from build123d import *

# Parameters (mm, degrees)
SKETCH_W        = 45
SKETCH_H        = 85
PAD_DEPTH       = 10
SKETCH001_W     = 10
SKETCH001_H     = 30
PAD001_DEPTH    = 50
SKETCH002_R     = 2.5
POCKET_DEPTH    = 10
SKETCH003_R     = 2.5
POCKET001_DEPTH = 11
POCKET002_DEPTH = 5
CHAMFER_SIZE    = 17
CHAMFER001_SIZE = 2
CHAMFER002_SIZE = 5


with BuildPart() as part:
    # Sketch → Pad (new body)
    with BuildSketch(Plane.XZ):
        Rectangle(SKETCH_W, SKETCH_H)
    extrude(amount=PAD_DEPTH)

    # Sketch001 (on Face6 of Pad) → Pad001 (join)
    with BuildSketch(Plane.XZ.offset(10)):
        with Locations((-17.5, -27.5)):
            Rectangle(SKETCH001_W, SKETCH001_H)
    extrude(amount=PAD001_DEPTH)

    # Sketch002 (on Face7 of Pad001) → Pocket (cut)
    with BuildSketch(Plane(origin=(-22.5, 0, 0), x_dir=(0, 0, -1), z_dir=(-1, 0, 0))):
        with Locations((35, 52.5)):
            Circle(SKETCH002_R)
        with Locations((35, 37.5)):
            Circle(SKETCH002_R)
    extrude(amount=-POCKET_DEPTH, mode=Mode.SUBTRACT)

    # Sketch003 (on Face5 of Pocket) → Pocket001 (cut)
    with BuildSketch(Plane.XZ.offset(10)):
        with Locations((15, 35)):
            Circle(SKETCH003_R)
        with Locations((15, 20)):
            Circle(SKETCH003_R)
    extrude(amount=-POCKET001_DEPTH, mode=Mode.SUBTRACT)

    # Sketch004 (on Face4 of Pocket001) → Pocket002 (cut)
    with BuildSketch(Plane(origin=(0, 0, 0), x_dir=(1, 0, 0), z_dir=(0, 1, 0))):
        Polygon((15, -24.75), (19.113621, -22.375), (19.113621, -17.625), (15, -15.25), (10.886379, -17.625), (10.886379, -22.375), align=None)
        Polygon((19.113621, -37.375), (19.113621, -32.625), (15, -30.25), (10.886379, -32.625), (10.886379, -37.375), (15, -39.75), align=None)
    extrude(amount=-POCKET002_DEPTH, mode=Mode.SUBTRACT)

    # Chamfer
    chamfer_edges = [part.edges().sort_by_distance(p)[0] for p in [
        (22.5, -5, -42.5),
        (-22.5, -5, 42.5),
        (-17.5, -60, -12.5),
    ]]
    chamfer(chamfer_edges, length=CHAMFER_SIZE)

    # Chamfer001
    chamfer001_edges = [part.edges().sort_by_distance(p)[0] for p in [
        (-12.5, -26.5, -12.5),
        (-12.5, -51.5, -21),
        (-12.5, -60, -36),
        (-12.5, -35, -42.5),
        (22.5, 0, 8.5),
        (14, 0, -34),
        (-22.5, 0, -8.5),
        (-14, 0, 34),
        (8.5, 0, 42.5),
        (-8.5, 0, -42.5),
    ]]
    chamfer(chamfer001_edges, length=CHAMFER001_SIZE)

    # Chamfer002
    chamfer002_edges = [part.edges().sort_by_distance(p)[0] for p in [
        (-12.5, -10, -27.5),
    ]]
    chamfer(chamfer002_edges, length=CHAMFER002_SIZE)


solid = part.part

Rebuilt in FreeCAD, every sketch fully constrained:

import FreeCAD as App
import Part
import Sketcher
from FreeCAD import Vector
Q = App.Units.Quantity


def edges_at(feature, points):
    """Names of the edges that pass closest to the given points."""
    edges = feature.Shape.Edges
    near = lambda p: min(range(len(edges)), key=lambda i: edges[i].distToShape(Part.Vertex(*p))[0])
    return sorted({f"Edge{near(p) + 1}" for p in points})

doc = App.newDocument("Part")
body = doc.addObject("PartDesign::Body", "Body")

# Sketch on XZ plane
sketch1 = body.newObject("Sketcher::SketchObject", "Sketch")
sketch1.AttachmentSupport = (doc.getObject("XZ_Plane"), [""])
sketch1.MapMode = "FlatFace"
sketch1.addGeometry(Part.LineSegment(Vector(-22, 42, 0), Vector(-22, -42, 0)), False)
sketch1.addGeometry(Part.LineSegment(Vector(-22, -42, 0), Vector(22, -42, 0)), False)
sketch1.addGeometry(Part.LineSegment(Vector(22, -42, 0), Vector(22, 42, 0)), False)
sketch1.addGeometry(Part.LineSegment(Vector(22, 42, 0), Vector(-22, 42, 0)), False)
sketch1.addConstraint(Sketcher.Constraint("Coincident", 0, 2, 1, 1))
sketch1.addConstraint(Sketcher.Constraint("Coincident", 1, 2, 2, 1))
sketch1.addConstraint(Sketcher.Constraint("Coincident", 2, 2, 3, 1))
sketch1.addConstraint(Sketcher.Constraint("Coincident", 3, 2, 0, 1))
sketch1.addConstraint(Sketcher.Constraint("Vertical", 0))
sketch1.addConstraint(Sketcher.Constraint("Horizontal", 1))
sketch1.addConstraint(Sketcher.Constraint("Vertical", 2))
sketch1.addConstraint(Sketcher.Constraint("Horizontal", 3))
sketch1.addConstraint(Sketcher.Constraint("Symmetric", 0, 2, 2, 2, -1, 1))
sketch1.addConstraint(Sketcher.Constraint("DistanceX", 1, 1, 1, 2, 45.0))
sketch1.addConstraint(Sketcher.Constraint("DistanceY", 0, 2, 0, 1, 85.0))
pad1 = body.newObject("PartDesign::Pad", "Pad")
pad1.Profile = sketch1
pad1.Length = 10

# Sketch on XZ plane
sketch2 = body.newObject("Sketcher::SketchObject", "Sketch001")
sketch2.AttachmentSupport = (doc.getObject("XZ_Plane"), [""])
sketch2.MapMode = "FlatFace"
sketch2.AttachmentOffset = App.Placement(Vector(0, 0, 10), App.Rotation())
sketch2.addGeometry(Part.LineSegment(Vector(-22, -12, 0), Vector(-22, -42, 0)), False)
sketch2.addGeometry(Part.LineSegment(Vector(-22, -42, 0), Vector(-12, -42, 0)), False)
sketch2.addGeometry(Part.LineSegment(Vector(-12, -42, 0), Vector(-12, -12, 0)), False)
sketch2.addGeometry(Part.LineSegment(Vector(-12, -12, 0), Vector(-22, -12, 0)), False)
sketch2.addConstraint(Sketcher.Constraint("Coincident", 0, 2, 1, 1))
sketch2.addConstraint(Sketcher.Constraint("Coincident", 1, 2, 2, 1))
sketch2.addConstraint(Sketcher.Constraint("Coincident", 2, 2, 3, 1))
sketch2.addConstraint(Sketcher.Constraint("Coincident", 3, 2, 0, 1))
sketch2.addConstraint(Sketcher.Constraint("Vertical", 0))
sketch2.addConstraint(Sketcher.Constraint("Horizontal", 1))
sketch2.addConstraint(Sketcher.Constraint("Vertical", 2))
sketch2.addConstraint(Sketcher.Constraint("Horizontal", 3))
sketch2.addConstraint(Sketcher.Constraint("DistanceX", 1, 1, 1, 2, 10.0))
sketch2.addConstraint(Sketcher.Constraint("DistanceY", 0, 2, 0, 1, 30.0))
sketch2.addConstraint(Sketcher.Constraint("DistanceX", 0, 2, -1, 1, 22.5))
sketch2.addConstraint(Sketcher.Constraint("DistanceY", 0, 2, -1, 1, 42.5))
pad2 = body.newObject("PartDesign::Pad", "Pad001")
pad2.Profile = sketch2
pad2.Length = 50

# Sketch on YZ plane
sketch3 = body.newObject("Sketcher::SketchObject", "Sketch002")
sketch3.AttachmentSupport = (doc.getObject("YZ_Plane"), [""])
sketch3.MapMode = "FlatFace"
sketch3.AttachmentOffset = App.Placement(Vector(0, 0, -22.5), App.Rotation())
sketch3.addGeometry(Part.Circle(Vector(-52.5, -35, 0), Vector(0, 0, 1), 2.5), False)
sketch3.addGeometry(Part.Circle(Vector(-37.5, -35, 0), Vector(0, 0, 1), 2.5), False)
sketch3.addConstraint(Sketcher.Constraint("Equal", 0, 1))
sketch3.addConstraint(Sketcher.Constraint("Horizontal", 0, 3, 1, 3))
sketch3.addConstraint(Sketcher.Constraint("Diameter", 0, 5.0))
sketch3.addConstraint(Sketcher.Constraint("DistanceY", 0, 3, -1, 1, 35.0))
sketch3.addConstraint(Sketcher.Constraint("DistanceX", 0, 3, 1, 3, 15.0))
sketch3.addConstraint(Sketcher.Constraint("DistanceX", 0, 3, -1, 1, 52.5))
pocket1 = body.newObject("PartDesign::Pocket", "Pocket")
pocket1.Profile = sketch3
pocket1.Length = 10
pocket1.Reversed = True

# Sketch on XZ plane
sketch4 = body.newObject("Sketcher::SketchObject", "Sketch003")
sketch4.AttachmentSupport = (doc.getObject("XZ_Plane"), [""])
sketch4.MapMode = "FlatFace"
sketch4.AttachmentOffset = App.Placement(Vector(0, 0, 10), App.Rotation())
sketch4.addGeometry(Part.Circle(Vector(15, 35, 0), Vector(0, 0, 1), 2.5), False)
sketch4.addGeometry(Part.Circle(Vector(15, 20, 0), Vector(0, 0, 1), 2.5), False)
sketch4.addConstraint(Sketcher.Constraint("Equal", 0, 1))
sketch4.addConstraint(Sketcher.Constraint("Vertical", 0, 3, 1, 3))
sketch4.addConstraint(Sketcher.Constraint("Diameter", 0, 5.0))
sketch4.addConstraint(Sketcher.Constraint("DistanceX", -1, 1, 0, 3, 15.0))
sketch4.addConstraint(Sketcher.Constraint("DistanceY", -1, 1, 0, 3, 35.0))
sketch4.addConstraint(Sketcher.Constraint("DistanceY", -1, 1, 1, 3, 20.0))
pocket2 = body.newObject("PartDesign::Pocket", "Pocket001")
pocket2.Profile = sketch4
pocket2.Length = 11

# Sketch on XZ plane
sketch5 = body.newObject("Sketcher::SketchObject", "Sketch004")
sketch5.AttachmentSupport = (doc.getObject("XZ_Plane"), [""])
sketch5.MapMode = "FlatFace"
sketch5.addGeometry(Part.LineSegment(Vector(15, 24.8, 0), Vector(19.1, 22.4, 0)), False)
sketch5.addGeometry(Part.LineSegment(Vector(19.1, 22.4, 0), Vector(19.1, 17.6, 0)), False)
sketch5.addGeometry(Part.LineSegment(Vector(19.1, 17.6, 0), Vector(15, 15.2, 0)), False)
sketch5.addGeometry(Part.LineSegment(Vector(15, 15.2, 0), Vector(10.9, 17.6, 0)), False)
sketch5.addGeometry(Part.LineSegment(Vector(10.9, 17.6, 0), Vector(10.9, 22.4, 0)), False)
sketch5.addGeometry(Part.LineSegment(Vector(10.9, 22.4, 0), Vector(15, 24.8, 0)), False)
sketch5.addGeometry(Part.LineSegment(Vector(19.1, 37.4, 0), Vector(19.1, 32.6, 0)), False)
sketch5.addGeometry(Part.LineSegment(Vector(19.1, 32.6, 0), Vector(15, 30.2, 0)), False)
sketch5.addGeometry(Part.LineSegment(Vector(15, 30.2, 0), Vector(10.9, 32.6, 0)), False)
sketch5.addGeometry(Part.LineSegment(Vector(10.9, 32.6, 0), Vector(10.9, 37.4, 0)), False)
sketch5.addGeometry(Part.LineSegment(Vector(10.9, 37.4, 0), Vector(15, 39.8, 0)), False)
sketch5.addGeometry(Part.LineSegment(Vector(15, 39.8, 0), Vector(19.1, 37.4, 0)), False)
sketch5.addConstraint(Sketcher.Constraint("Coincident", 0, 2, 1, 1))
sketch5.addConstraint(Sketcher.Constraint("Coincident", 1, 2, 2, 1))
sketch5.addConstraint(Sketcher.Constraint("Coincident", 2, 2, 3, 1))
sketch5.addConstraint(Sketcher.Constraint("Coincident", 3, 2, 4, 1))
sketch5.addConstraint(Sketcher.Constraint("Coincident", 4, 2, 5, 1))
sketch5.addConstraint(Sketcher.Constraint("Coincident", 5, 2, 0, 1))
sketch5.addConstraint(Sketcher.Constraint("Coincident", 6, 2, 7, 1))
sketch5.addConstraint(Sketcher.Constraint("Coincident", 7, 2, 8, 1))
sketch5.addConstraint(Sketcher.Constraint("Coincident", 8, 2, 9, 1))
sketch5.addConstraint(Sketcher.Constraint("Coincident", 9, 2, 10, 1))
sketch5.addConstraint(Sketcher.Constraint("Coincident", 10, 2, 11, 1))
sketch5.addConstraint(Sketcher.Constraint("Coincident", 11, 2, 6, 1))
sketch5.addConstraint(Sketcher.Constraint("Vertical", 1))
sketch5.addConstraint(Sketcher.Constraint("Vertical", 4))
sketch5.addConstraint(Sketcher.Constraint("Vertical", 6))
sketch5.addConstraint(Sketcher.Constraint("Vertical", 9))
sketch5.addConstraint(Sketcher.Constraint("Parallel", 0, 3))
sketch5.addConstraint(Sketcher.Constraint("Parallel", 2, 5))
sketch5.addConstraint(Sketcher.Constraint("Parallel", 5, 7))
sketch5.addConstraint(Sketcher.Constraint("Parallel", 3, 8))
sketch5.addConstraint(Sketcher.Constraint("Parallel", 7, 10))
sketch5.addConstraint(Sketcher.Constraint("Parallel", 8, 11))
sketch5.addConstraint(Sketcher.Constraint("Horizontal", 1, 2, 3, 2))
sketch5.addConstraint(Sketcher.Constraint("Horizontal", 0, 2, 4, 2))
sketch5.addConstraint(Sketcher.Constraint("Horizontal", 6, 2, 8, 2))
sketch5.addConstraint(Sketcher.Constraint("Horizontal", 9, 2, 11, 2))
sketch5.addConstraint(Sketcher.Constraint("Vertical", 2, 2, 5, 2))
sketch5.addConstraint(Sketcher.Constraint("Vertical", 1, 2, 6, 2))
sketch5.addConstraint(Sketcher.Constraint("Vertical", 5, 2, 7, 2))
sketch5.addConstraint(Sketcher.Constraint("Equal", 4, 6))
sketch5.addConstraint(Sketcher.Constraint("Angle", 0, Q("-29.999998 deg")))
sketch5.addConstraint(Sketcher.Constraint("DistanceX", -1, 1, 2, 2, 15.0))
sketch5.addConstraint(Sketcher.Constraint("DistanceY", 1, 2, 6, 2, 15.0))
sketch5.addConstraint(Sketcher.Constraint("DistanceY", 1, 2, 1, 1, 4.75))
sketch5.addConstraint(Sketcher.Constraint("DistanceY", 2, 2, 5, 2, 9.5))
sketch5.addConstraint(Sketcher.Constraint("DistanceY", -1, 1, 2, 2, 15.25))
pocket3 = body.newObject("PartDesign::Pocket", "Pocket002")
pocket3.Profile = sketch5
pocket3.Length = 5
pocket3.Reversed = True
doc.recompute()

chamfer = body.newObject("PartDesign::Chamfer", "Chamfer")
chamfer.Base = (pocket3, edges_at(pocket3, [(22.5, -5, -42.5), (-22.5, -5, 42.5), (-17.5, -60, -12.5)]))
chamfer.Size = 17
doc.recompute()

chamfer2 = body.newObject("PartDesign::Chamfer", "Chamfer001")
chamfer2.Base = (chamfer, edges_at(chamfer, [
    (-12.5, -26.5, -12.5),
    (-12.5, -51.5, -21),
    (-12.5, -60, -36),
    (-12.5, -35, -42.5),
    (22.5, 0, 8.5),
    (14, 0, -34),
    (-22.5, 0, -8.5),
    (-14, 0, 34),
    (8.5, 0, 42.5),
    (-8.5, 0, -42.5),
]))
chamfer2.Size = 2
doc.recompute()

chamfer3 = body.newObject("PartDesign::Chamfer", "Chamfer002")
chamfer3.Base = (chamfer2, edges_at(chamfer2, [(-12.5, -10, -27.5)]))
chamfer3.Size = 5

doc.recompute()
